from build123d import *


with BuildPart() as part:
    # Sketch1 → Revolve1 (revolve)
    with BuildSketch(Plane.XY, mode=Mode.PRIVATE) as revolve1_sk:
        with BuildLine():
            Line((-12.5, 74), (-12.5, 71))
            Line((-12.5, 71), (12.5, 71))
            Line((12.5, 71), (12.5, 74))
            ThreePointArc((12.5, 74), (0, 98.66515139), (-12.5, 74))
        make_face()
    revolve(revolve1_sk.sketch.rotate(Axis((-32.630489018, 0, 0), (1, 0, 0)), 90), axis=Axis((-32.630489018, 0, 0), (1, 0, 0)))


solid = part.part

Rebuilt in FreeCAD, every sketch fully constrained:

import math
import FreeCAD as App
import Part
import Sketcher

V = App.Vector

doc = App.newDocument("Part")
params = doc.addObject("Spreadsheet::Sheet", "Params")
for row, (alias, value) in enumerate([
    ("sketch1_radius", "15.5 mm"),
    ("sketch1_width", "25 mm"),
    ("sketch1_height", "3 mm"),
    ("revolution_angle", "360 deg"),
], start=1):
    params.set(f"A{row}", alias)
    params.set(f"B{row}", "=" + value)
    params.setAlias(f"B{row}", alias)

body = doc.addObject("PartDesign::Body", "Body")

# Sketch on XY plane
sketch1 = body.newObject("Sketcher::SketchObject", "Sketch")
sketch1.AttachmentSupport = (doc.getObject("XY_Plane"), [""])
sketch1.MapMode = "FlatFace"
sketch1.addGeometry([
    Part.LineSegment(V(-12.5, 74, 0), V(-12.5, 71, 0)),
    Part.LineSegment(V(-12.5, 71, 0), V(12.5, 71, 0)),
    Part.LineSegment(V(12.5, 71, 0), V(12.5, 74, 0)),
    Part.ArcOfCircle(Part.Circle(V(0, 83.165151, 0), V(0, 0, 1), 15.5), math.radians(-36.249321), math.radians(216.249321)),
], False)
sketch1.addConstraint([
    Sketcher.Constraint("Coincident", 0, 2, 1, 1),
    Sketcher.Constraint("Coincident", 1, 2, 2, 1),
    Sketcher.Constraint("Coincident", 2, 2, 3, 1),
    Sketcher.Constraint("Coincident", 3, 2, 0, 1),
    Sketcher.Constraint("Vertical", 0),
    Sketcher.Constraint("Horizontal", 1),
    Sketcher.Constraint("Vertical", 2),
    Sketcher.Constraint("Symmetric", 2, 2, 3, 2, -2),
    Sketcher.Constraint("Radius", 3, 15.5),
    Sketcher.Constraint("DistanceX", 1, 1, 1, 2, 25.0),
    Sketcher.Constraint("DistanceY", 0, 2, 0, 1, 3.0),
    Sketcher.Constraint("DistanceY", -1, 1, 0, 2, 71.0),
])
sketch1.setExpression("Constraints[8]", "Params.sketch1_radius")
sketch1.setExpression("Constraints[9]", "Params.sketch1_width")
sketch1.setExpression("Constraints[10]", "Params.sketch1_height")
revolution = body.newObject("PartDesign::Revolution", "Revolution")
revolution.Profile = sketch1
revolution.ReferenceAxis = (sketch1, ["H_Axis"])
revolution.setExpression("Angle", "Params.revolution_angle")

doc.recompute()
